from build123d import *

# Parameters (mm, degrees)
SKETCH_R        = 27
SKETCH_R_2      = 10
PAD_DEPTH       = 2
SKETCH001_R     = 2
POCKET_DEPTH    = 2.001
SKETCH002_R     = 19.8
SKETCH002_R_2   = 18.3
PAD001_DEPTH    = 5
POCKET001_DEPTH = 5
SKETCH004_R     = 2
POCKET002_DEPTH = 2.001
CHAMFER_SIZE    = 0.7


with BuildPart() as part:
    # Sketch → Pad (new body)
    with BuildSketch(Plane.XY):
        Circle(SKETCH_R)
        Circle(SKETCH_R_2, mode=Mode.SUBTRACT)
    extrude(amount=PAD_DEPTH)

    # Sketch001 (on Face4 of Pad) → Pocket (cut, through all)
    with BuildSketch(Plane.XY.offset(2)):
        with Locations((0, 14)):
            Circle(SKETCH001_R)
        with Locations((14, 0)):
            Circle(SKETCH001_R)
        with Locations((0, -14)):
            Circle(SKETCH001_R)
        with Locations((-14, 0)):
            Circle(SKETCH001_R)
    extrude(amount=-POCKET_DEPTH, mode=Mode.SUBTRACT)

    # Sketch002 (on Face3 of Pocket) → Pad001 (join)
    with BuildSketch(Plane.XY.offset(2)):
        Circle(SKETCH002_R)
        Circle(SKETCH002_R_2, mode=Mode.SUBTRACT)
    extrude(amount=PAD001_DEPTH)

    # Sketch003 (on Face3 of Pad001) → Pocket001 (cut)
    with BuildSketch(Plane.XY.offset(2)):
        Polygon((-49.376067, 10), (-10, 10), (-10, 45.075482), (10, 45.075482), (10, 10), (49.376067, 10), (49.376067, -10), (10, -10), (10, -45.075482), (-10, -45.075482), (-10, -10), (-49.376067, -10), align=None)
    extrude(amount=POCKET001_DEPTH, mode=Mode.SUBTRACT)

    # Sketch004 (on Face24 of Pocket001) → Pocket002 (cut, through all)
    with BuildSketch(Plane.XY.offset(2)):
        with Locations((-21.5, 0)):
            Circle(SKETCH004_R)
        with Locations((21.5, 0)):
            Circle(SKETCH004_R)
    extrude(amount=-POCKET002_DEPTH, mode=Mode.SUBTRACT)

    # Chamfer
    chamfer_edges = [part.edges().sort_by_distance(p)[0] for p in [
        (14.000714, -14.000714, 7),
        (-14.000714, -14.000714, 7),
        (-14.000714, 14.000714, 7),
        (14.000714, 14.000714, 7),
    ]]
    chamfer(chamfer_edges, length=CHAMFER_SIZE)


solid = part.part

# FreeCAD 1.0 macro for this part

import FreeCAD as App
import Part
import Sketcher
from FreeCAD import Vector


def edges_at(feature, points):
    """Names of the edges that pass closest to the given points."""
    edges = feature.Shape.Edges
    near = lambda p: min(range(len(edges)), key=lambda i: edges[i].distToShape(Part.Vertex(*p))[0])
    return sorted({f"Edge{near(p) + 1}" for p in points})

doc = App.newDocument("Part")
params = doc.addObject("Spreadsheet::Sheet", "Params")
for row, (alias, value) in enumerate([
    ("sketch1_diameter", "54 mm"),
    ("sketch1_diameter2", "20 mm"),
    ("pad1_length", "2 mm"),
    ("sketch2_diameter", "4 mm"),
    ("sketch3_diameter", "39.6 mm"),
    ("sketch3_diameter2", "36.6 mm"),
    ("pad2_length", "5 mm"),
    ("sketch4_width", "20 mm"),
    ("pocket2_length", "5 mm"),
    ("sketch5_diameter", "4 mm"),
    ("chamfer_size", "0.7 mm"),
], start=1):
    params.set(f"A{row}", alias)
    params.set(f"B{row}", "=" + value)
    params.setAlias(f"B{row}", alias)

body = doc.addObject("PartDesign::Body", "Body")

sketch1 = body.newObject("Sketcher::SketchObject", "Sketch")
sketch1.AttachmentSupport = (doc.getObject("XY_Plane"), [""])
sketch1.MapMode = "FlatFace"
sketch1.addGeometry(Part.Circle(Vector(0, 0, 0), Vector(0, 0, 1), 27), False)
sketch1.addGeometry(Part.Circle(Vector(0, 0, 0), Vector(0, 0, 1), 10), False)
sketch1.addConstraint(Sketcher.Constraint("Coincident", 0, 3, -1, 1))
sketch1.addConstraint(Sketcher.Constraint("Coincident", 1, 3, -1, 1))
sketch1.addConstraint(Sketcher.Constraint("Diameter", 0, 54.0))
sketch1.addConstraint(Sketcher.Constraint("Diameter", 1, 20.0))
sketch1.setExpression("Constraints[2]", "Params.sketch1_diameter")
sketch1.setExpression("Constraints[3]", "Params.sketch1_diameter2")
pad1 = body.newObject("PartDesign::Pad", "Pad")
pad1.Profile = sketch1
pad1.setExpression("Length", "Params.pad1_length")

sketch2 = body.newObject("Sketcher::SketchObject", "Sketch001")
sketch2.AttachmentSupport = (doc.getObject("XY_Plane"), [""])
sketch2.MapMode = "FlatFace"
sketch2.AttachmentOffset = App.Placement(Vector(0, 0, 2), App.Rotation())
sketch2.addGeometry(Part.Circle(Vector(0, 14, 0), Vector(0, 0, 1), 2), False)
sketch2.addGeometry(Part.Circle(Vector(14, 0, 0), Vector(0, 0, 1), 2), False)
sketch2.addGeometry(Part.Circle(Vector(0, -14, 0), Vector(0, 0, 1), 2), False)
sketch2.addGeometry(Part.Circle(Vector(-14, 0, 0), Vector(0, 0, 1), 2), False)
sketch2.addConstraint(Sketcher.Constraint("Equal", 0, 1))
sketch2.addConstraint(Sketcher.Constraint("Equal", 1, 2))
sketch2.addConstraint(Sketcher.Constraint("Equal", 2, 3))
sketch2.addConstraint(Sketcher.Constraint("Symmetric", 0, 3, 2, 3, -1, 1))
sketch2.addConstraint(Sketcher.Constraint("Symmetric", 1, 3, 3, 3, -1, 1))
sketch2.addConstraint(Sketcher.Constraint("PointOnObject", 0, 3, -2))
sketch2.addConstraint(Sketcher.Constraint("PointOnObject", 1, 3, -1))
sketch2.addConstraint(Sketcher.Constraint("Diameter", 0, 4.0))
sketch2.addConstraint(Sketcher.Constraint("DistanceY", -1, 1, 0, 3, 14.0))
sketch2.addConstraint(Sketcher.Constraint("DistanceX", -1, 1, 1, 3, 14.0))
sketch2.setExpression("Constraints[7]", "Params.sketch2_diameter")
pocket1 = body.newObject("PartDesign::Pocket", "Pocket")
pocket1.Profile = sketch2
pocket1.Type = "ThroughAll"

sketch3 = body.newObject("Sketcher::SketchObject", "Sketch002")
sketch3.AttachmentSupport = (doc.getObject("XY_Plane"), [""])
sketch3.MapMode = "FlatFace"
sketch3.AttachmentOffset = App.Placement(Vector(0, 0, 2), App.Rotation())
sketch3.addGeometry(Part.Circle(Vector(0, 0, 0), Vector(0, 0, 1), 19.8), False)
sketch3.addGeometry(Part.Circle(Vector(0, 0, 0), Vector(0, 0, 1), 18.3), False)
sketch3.addConstraint(Sketcher.Constraint("Coincident", 0, 3, -1, 1))
sketch3.addConstraint(Sketcher.Constraint("Coincident", 1, 3, -1, 1))
sketch3.addConstraint(Sketcher.Constraint("Diameter", 0, 39.6))
sketch3.addConstraint(Sketcher.Constraint("Diameter", 1, 36.6))
sketch3.setExpression("Constraints[2]", "Params.sketch3_diameter")
sketch3.setExpression("Constraints[3]", "Params.sketch3_diameter2")
pad2 = body.newObject("PartDesign::Pad", "Pad001")
pad2.Profile = sketch3
pad2.setExpression("Length", "Params.pad2_length")

sketch4 = body.newObject("Sketcher::SketchObject", "Sketch003")
sketch4.AttachmentSupport = (doc.getObject("XY_Plane"), [""])
sketch4.MapMode = "FlatFace"
sketch4.AttachmentOffset = App.Placement(Vector(0, 0, 2), App.Rotation())
sketch4.addGeometry(Part.LineSegment(Vector(-10, 10, 0), Vector(-49.376067, 10, 0)), False)
sketch4.addGeometry(Part.LineSegment(Vector(-49.376067, 10, 0), Vector(-49.376067, -10, 0)), False)
sketch4.addGeometry(Part.LineSegment(Vector(-49.376067, -10, 0), Vector(-10, -10, 0)), False)
sketch4.addGeometry(Part.LineSegment(Vector(-10, -10, 0), Vector(-10, -45.075482, 0)), False)
sketch4.addGeometry(Part.LineSegment(Vector(-10, -45.075482, 0), Vector(10, -45.075482, 0)), False)
sketch4.addGeometry(Part.LineSegment(Vector(10, -45.075482, 0), Vector(10, -10, 0)), False)
sketch4.addGeometry(Part.LineSegment(Vector(10, -10, 0), Vector(49.376067, -10, 0)), False)
sketch4.addGeometry(Part.LineSegment(Vector(49.376067, -10, 0), Vector(49.376067, 10, 0)), False)
sketch4.addGeometry(Part.LineSegment(Vector(49.376067, 10, 0), Vector(10, 10, 0)), False)
sketch4.addGeometry(Part.LineSegment(Vector(10, 10, 0), Vector(10, 45.075482, 0)), False)
sketch4.addGeometry(Part.LineSegment(Vector(10, 45.075482, 0), Vector(-10, 45.075482, 0)), False)
sketch4.addGeometry(Part.LineSegment(Vector(-10, 45.075482, 0), Vector(-10, 10, 0)), False)
sketch4.addConstraint(Sketcher.Constraint("Coincident", 0, 2, 1, 1))
sketch4.addConstraint(Sketcher.Constraint("Coincident", 1, 2, 2, 1))
sketch4.addConstraint(Sketcher.Constraint("Coincident", 2, 2, 3, 1))
sketch4.addConstraint(Sketcher.Constraint("Coincident", 3, 2, 4, 1))
sketch4.addConstraint(Sketcher.Constraint("Coincident", 4, 2, 5, 1))
sketch4.addConstraint(Sketcher.Constraint("Coincident", 5, 2, 6, 1))
sketch4.addConstraint(Sketcher.Constraint("Coincident", 6, 2, 7, 1))
sketch4.addConstraint(Sketcher.Constraint("Coincident", 7, 2, 8, 1))
sketch4.addConstraint(Sketcher.Constraint("Coincident", 8, 2, 9, 1))
sketch4.addConstraint(Sketcher.Constraint("Coincident", 9, 2, 10, 1))
sketch4.addConstraint(Sketcher.Constraint("Coincident", 10, 2, 11, 1))
sketch4.addConstraint(Sketcher.Constraint("Coincident", 11, 2, 0, 1))
sketch4.addConstraint(Sketcher.Constraint("Horizontal", 0))
sketch4.addConstraint(Sketcher.Constraint("Vertical", 1))
sketch4.addConstraint(Sketcher.Constraint("Horizontal", 2))
sketch4.addConstraint(Sketcher.Constraint("Vertical", 3))
sketch4.addConstraint(Sketcher.Constraint("Horizontal", 4))
sketch4.addConstraint(Sketcher.Constraint("Vertical", 5))
sketch4.addConstraint(Sketcher.Constraint("Horizontal", 6))
sketch4.addConstraint(Sketcher.Constraint("Vertical", 7))
sketch4.addConstraint(Sketcher.Constraint("Horizontal", 8))
sketch4.addConstraint(Sketcher.Constraint("Vertical", 9))
sketch4.addConstraint(Sketcher.Constraint("Horizontal", 10))
sketch4.addConstraint(Sketcher.Constraint("Vertical", 11))
sketch4.addConstraint(Sketcher.Constraint("Symmetric", 0, 2, 6, 2, -1, 1))
sketch4.addConstraint(Sketcher.Constraint("Symmetric", 2, 2, 8, 2, -1, 1))
sketch4.addConstraint(Sketcher.Constraint("Symmetric", 4, 2, 10, 2, -1, 1))
sketch4.addConstraint(Sketcher.Constraint("Symmetric", 2, 2, 5, 2, -2))
sketch4.addConstraint(Sketcher.Constraint("Equal", 10, 1))
sketch4.addConstraint(Sketcher.Constraint("DistanceX", 4, 1, 4, 2, 20.0))
sketch4.addConstraint(Sketcher.Constraint("DistanceX", 0, 2, 0, 1, 39.376067))
sketch4.addConstraint(Sketcher.Constraint("DistanceY", 3, 2, 3, 1, 35.075482))
sketch4.setExpression("Constraints[29]", "Params.sketch4_width")
pocket2 = body.newObject("PartDesign::Pocket", "Pocket001")
pocket2.Profile = sketch4
pocket2.setExpression("Length", "Params.pocket2_length")
pocket2.Reversed = True

sketch5 = body.newObject("Sketcher::SketchObject", "Sketch004")
sketch5.AttachmentSupport = (doc.getObject("XY_Plane"), [""])
sketch5.MapMode = "FlatFace"
sketch5.AttachmentOffset = App.Placement(Vector(0, 0, 2), App.Rotation())
sketch5.addGeometry(Part.Circle(Vector(-21.5, 0, 0), Vector(0, 0, 1), 2), False)
sketch5.addGeometry(Part.Circle(Vector(21.5, 0, 0), Vector(0, 0, 1), 2), False)
sketch5.addConstraint(Sketcher.Constraint("Equal", 0, 1))
sketch5.addConstraint(Sketcher.Constraint("Symmetric", 0, 3, 1, 3, -1, 1))
sketch5.addConstraint(Sketcher.Constraint("PointOnObject", 0, 3, -1))
sketch5.addConstraint(Sketcher.Constraint("Diameter", 0, 4.0))
sketch5.addConstraint(Sketcher.Constraint("DistanceX", 0, 3, 1, 3, 43.0))
sketch5.setExpression("Constraints[3]", "Params.sketch5_diameter")
pocket3 = body.newObject("PartDesign::Pocket", "Pocket002")
pocket3.Profile = sketch5
pocket3.Type = "ThroughAll"
doc.recompute()

chamfer = body.newObject("PartDesign::Chamfer", "Chamfer")
chamfer.Base = (pocket3, edges_at(pocket3, [
    (14.001, -14.001, 7),
    (-14.001, -14.001, 7),
    (-14.001, 14.001, 7),
    (14.001, 14.001, 7),
]))
chamfer.setExpression("Size", "Params.chamfer_size")

doc.recompute()
